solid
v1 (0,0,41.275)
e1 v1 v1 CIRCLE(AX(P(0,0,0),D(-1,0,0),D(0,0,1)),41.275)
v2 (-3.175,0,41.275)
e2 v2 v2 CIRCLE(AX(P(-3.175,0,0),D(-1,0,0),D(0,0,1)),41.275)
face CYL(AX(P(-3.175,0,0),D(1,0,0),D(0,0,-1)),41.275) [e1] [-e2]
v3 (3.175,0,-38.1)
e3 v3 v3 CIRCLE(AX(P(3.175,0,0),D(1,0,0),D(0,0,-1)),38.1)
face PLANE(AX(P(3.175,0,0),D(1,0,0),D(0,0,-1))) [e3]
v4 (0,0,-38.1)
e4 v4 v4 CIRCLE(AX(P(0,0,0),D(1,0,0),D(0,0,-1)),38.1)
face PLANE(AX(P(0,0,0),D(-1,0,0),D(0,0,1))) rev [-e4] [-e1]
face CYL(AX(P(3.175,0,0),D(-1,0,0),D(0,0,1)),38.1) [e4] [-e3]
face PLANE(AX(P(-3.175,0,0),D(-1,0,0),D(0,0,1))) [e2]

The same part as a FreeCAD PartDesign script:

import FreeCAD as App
import Part
import Sketcher

V = App.Vector
Q = App.Units.Quantity

doc = App.newDocument("Part")
body = doc.addObject("PartDesign::Body", "Body")

# Sketch on YZ plane
sketch1 = doc.addObject("Sketcher::SketchObject", "Sketch")
body.addObject(sketch1)
sketch1.AttachmentSupport = (doc.YZ_Plane, [""])
sketch1.MapMode = "FlatFace"
sketch1.addGeometry(Part.Circle(V(0, 0, 0), V(0, 0, 1), 38), False)
sketch1.addConstraint([
    Sketcher.Constraint("Coincident", 0, 3, -1, 1),
    Sketcher.Constraint("Diameter", 0, Q("3 in")),
])
pad1 = doc.addObject("PartDesign::Pad", "Pad")
body.addObject(pad1)
pad1.Profile = sketch1
pad1.Length = Q("0.125 in")

# Sketch on YZ plane
sketch2 = doc.addObject("Sketcher::SketchObject", "Sketch001")
body.addObject(sketch2)
sketch2.AttachmentSupport = (doc.YZ_Plane, [""])
sketch2.MapMode = "FlatFace"
sketch2.addGeometry(Part.Circle(V(0, 0, 0), V(0, 0, 1), 41), False)
sketch2.addConstraint([
    Sketcher.Constraint("Coincident", 0, 3, -1, 1),
    Sketcher.Constraint("Diameter", 0, Q("3.25 in")),
])
pad2 = doc.addObject("PartDesign::Pad", "Pad001")
body.addObject(pad2)
pad2.Profile = sketch2
pad2.Length = Q("0.125 in")
pad2.Reversed = True

doc.recompute()
